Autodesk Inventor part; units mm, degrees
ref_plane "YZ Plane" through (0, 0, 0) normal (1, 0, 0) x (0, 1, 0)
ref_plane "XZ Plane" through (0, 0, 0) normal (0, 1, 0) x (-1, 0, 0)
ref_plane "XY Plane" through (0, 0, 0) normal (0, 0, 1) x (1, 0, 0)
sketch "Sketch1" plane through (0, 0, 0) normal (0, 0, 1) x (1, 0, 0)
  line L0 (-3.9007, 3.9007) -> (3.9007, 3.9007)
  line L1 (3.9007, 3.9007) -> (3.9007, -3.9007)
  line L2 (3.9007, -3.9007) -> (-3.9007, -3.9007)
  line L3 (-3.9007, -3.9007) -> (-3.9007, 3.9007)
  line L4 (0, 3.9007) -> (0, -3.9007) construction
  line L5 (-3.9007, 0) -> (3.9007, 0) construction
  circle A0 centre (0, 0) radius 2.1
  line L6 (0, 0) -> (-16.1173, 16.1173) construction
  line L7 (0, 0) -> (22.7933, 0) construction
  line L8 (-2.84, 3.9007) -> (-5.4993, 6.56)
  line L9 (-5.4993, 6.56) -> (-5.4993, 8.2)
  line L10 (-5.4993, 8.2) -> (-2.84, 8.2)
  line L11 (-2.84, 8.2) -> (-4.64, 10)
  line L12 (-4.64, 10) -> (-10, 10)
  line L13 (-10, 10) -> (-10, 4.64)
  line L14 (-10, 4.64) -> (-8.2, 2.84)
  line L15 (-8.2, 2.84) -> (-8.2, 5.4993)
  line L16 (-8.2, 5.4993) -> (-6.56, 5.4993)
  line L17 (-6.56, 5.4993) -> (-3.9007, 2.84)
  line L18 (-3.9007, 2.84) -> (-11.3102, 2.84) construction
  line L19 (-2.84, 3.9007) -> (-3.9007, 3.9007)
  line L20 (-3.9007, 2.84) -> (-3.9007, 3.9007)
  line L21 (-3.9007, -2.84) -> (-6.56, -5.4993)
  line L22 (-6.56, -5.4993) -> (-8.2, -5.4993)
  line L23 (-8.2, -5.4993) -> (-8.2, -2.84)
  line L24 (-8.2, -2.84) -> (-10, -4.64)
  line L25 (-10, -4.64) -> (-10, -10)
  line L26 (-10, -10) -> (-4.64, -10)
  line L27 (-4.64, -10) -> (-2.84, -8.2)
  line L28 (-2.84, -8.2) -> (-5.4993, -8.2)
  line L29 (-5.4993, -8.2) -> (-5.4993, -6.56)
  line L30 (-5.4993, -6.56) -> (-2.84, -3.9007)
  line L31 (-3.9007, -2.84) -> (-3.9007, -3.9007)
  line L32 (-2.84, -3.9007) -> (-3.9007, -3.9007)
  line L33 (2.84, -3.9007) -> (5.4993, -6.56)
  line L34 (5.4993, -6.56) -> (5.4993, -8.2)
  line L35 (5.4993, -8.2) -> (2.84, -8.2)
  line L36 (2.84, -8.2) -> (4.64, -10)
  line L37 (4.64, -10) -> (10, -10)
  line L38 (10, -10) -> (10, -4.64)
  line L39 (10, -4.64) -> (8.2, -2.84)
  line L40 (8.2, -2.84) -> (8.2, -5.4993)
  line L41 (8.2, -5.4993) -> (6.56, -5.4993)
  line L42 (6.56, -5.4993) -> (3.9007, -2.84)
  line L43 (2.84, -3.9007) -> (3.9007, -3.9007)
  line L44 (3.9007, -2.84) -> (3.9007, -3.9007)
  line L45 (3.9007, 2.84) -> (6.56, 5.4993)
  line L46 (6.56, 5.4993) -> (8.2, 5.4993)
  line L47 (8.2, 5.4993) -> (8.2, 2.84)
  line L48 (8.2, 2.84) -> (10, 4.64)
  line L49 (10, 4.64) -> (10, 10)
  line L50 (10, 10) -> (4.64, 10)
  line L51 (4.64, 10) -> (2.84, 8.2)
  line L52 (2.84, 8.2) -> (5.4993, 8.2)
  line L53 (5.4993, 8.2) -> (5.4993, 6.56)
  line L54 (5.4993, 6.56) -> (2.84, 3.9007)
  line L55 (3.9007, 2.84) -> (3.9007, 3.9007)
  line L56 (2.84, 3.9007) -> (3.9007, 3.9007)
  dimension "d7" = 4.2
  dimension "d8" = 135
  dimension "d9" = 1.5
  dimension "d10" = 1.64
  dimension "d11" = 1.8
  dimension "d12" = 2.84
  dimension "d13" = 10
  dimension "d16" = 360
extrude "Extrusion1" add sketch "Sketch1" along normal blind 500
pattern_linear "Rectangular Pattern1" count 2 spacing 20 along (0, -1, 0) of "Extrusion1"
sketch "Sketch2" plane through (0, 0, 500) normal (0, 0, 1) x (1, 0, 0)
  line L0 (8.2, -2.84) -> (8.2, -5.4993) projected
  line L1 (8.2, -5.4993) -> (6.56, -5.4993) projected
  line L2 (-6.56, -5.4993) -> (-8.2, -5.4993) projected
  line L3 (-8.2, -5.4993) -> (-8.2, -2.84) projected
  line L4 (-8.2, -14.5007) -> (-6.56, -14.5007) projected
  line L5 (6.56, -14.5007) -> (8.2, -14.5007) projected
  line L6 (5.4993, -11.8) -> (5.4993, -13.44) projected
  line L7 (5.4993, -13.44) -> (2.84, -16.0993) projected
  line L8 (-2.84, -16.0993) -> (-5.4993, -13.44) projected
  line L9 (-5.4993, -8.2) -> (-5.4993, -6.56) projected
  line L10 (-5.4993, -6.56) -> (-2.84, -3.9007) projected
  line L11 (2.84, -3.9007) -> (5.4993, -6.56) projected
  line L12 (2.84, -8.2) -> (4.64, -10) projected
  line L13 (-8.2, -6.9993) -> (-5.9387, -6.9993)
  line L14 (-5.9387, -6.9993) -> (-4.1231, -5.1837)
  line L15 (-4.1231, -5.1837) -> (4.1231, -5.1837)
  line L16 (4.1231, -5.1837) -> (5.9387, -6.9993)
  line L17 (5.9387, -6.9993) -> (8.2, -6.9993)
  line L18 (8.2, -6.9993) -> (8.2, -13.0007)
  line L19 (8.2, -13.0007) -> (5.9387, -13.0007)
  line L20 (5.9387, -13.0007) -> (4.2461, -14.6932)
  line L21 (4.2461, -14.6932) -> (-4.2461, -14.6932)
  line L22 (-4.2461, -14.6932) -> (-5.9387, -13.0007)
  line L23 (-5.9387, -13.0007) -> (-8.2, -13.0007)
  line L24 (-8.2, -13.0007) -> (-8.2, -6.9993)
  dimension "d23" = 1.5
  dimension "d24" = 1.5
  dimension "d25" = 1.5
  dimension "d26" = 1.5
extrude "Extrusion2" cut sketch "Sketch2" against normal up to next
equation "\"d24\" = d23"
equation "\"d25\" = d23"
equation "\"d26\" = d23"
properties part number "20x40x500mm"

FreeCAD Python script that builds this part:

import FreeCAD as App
import Part
import Sketcher

V = App.Vector
Q = App.Units.Quantity


def add_polygon(sketch, points):
    """Adds a closed chain of lines whose ends are joined by coincident constraints."""
    first, n = sketch.GeometryCount, len(points)
    for a, b in zip(points, points[1:] + points[:1]):
        sketch.addGeometry(Part.LineSegment(App.Vector(*a, 0), App.Vector(*b, 0)), False)
    for i in range(n):
        sketch.addConstraint(Sketcher.Constraint("Coincident", first + i, 2, first + (i + 1) % n, 1))

doc = App.newDocument("Part")
params = doc.addObject("Spreadsheet::Sheet", "Params")
for row, (alias, value) in enumerate([
    ("sketch1_diameter", "4.2 mm"),
    ("sketch1_width", "1.64 mm"),
    ("pad1_length", "500 mm"),
    ("linearpattern_pitch", "20 mm"),
    ("pocket1_length", "500 mm"),
], start=1):
    params.set(f"A{row}", alias)
    params.set(f"B{row}", "=" + value)
    params.setAlias(f"B{row}", alias)

body = doc.addObject("PartDesign::Body", "Body")

# Sketch on XY plane
sketch1 = doc.addObject("Sketcher::SketchObject", "Sketch")
body.addObject(sketch1)
sketch1.AttachmentSupport = (doc.XY_Plane, [""])
sketch1.MapMode = "FlatFace"
add_polygon(sketch1, [(-6.6, 5.5), (-3.9, 2.8), (-3.9, -2.8), (-6.6, -5.5), (-8.2, -5.5), (-8.2, -2.8), (-10, -4.6), (-10, -10), (-4.6, -10), (-2.8, -8.2), (-5.5, -8.2), (-5.5, -6.6), (-2.8, -3.9), (2.8, -3.9), (5.5, -6.6), (5.5, -8.2), (2.8, -8.2), (4.6, -10), (10, -10), (10, -4.6), (8.2, -2.8), (8.2, -5.5), (6.6, -5.5), (3.9, -2.8), (3.9, 2.8), (6.6, 5.5), (8.2, 5.5), (8.2, 2.8), (10, 4.6), (10, 10), (4.6, 10), (2.8, 8.2), (5.5, 8.2), (5.5, 6.6), (2.8, 3.9), (-2.8, 3.9), (-5.5, 6.6), (-5.5, 8.2), (-2.8, 8.2), (-4.6, 10), (-10, 10), (-10, 4.6), (-8.2, 2.8), (-8.2, 5.5)])  # lines 0-43
sketch1.addGeometry(Part.Circle(V(0, 0, 0), V(0, 0, 1), 2.1), False)  # 44
sketch1.addConstraint([
    Sketcher.Constraint("Vertical", 1),
    Sketcher.Constraint("Horizontal", 3),
    Sketcher.Constraint("Vertical", 4),
    Sketcher.Constraint("Vertical", 6),
    Sketcher.Constraint("Horizontal", 7),
    Sketcher.Constraint("Horizontal", 9),
    Sketcher.Constraint("Vertical", 10),
    Sketcher.Constraint("Horizontal", 12),
    Sketcher.Constraint("Vertical", 14),
    Sketcher.Constraint("Horizontal", 15),
    Sketcher.Constraint("Horizontal", 17),
    Sketcher.Constraint("Vertical", 18),
    Sketcher.Constraint("Vertical", 20),
    Sketcher.Constraint("Horizontal", 21),
    Sketcher.Constraint("Vertical", 23),
    Sketcher.Constraint("Horizontal", 25),
    Sketcher.Constraint("Vertical", 26),
    Sketcher.Constraint("Vertical", 28),
    Sketcher.Constraint("Horizontal", 29),
    Sketcher.Constraint("Horizontal", 31),
    Sketcher.Constraint("Vertical", 32),
    Sketcher.Constraint("Horizontal", 34),
    Sketcher.Constraint("Vertical", 36),
    Sketcher.Constraint("Horizontal", 37),
    Sketcher.Constraint("Horizontal", 39),
    Sketcher.Constraint("Vertical", 40),
    Sketcher.Constraint("Vertical", 42),
    Sketcher.Constraint("Horizontal", 43),
    Sketcher.Constraint("Coincident", 44, 3, -1, 1),
    Sketcher.Constraint("Symmetric", 0, 2, 22, 2, -1, 1),
    Sketcher.Constraint("Symmetric", 2, 2, 24, 2, -1, 1),
    Sketcher.Constraint("Symmetric", 4, 2, 26, 2, -1, 1),
    Sketcher.Constraint("Symmetric", 5, 2, 27, 2, -1, 1),
    Sketcher.Constraint("Symmetric", 7, 2, 29, 2, -1, 1),
    Sketcher.Constraint("Symmetric", 8, 2, 30, 2, -1, 1),
    Sketcher.Constraint("Symmetric", 10, 2, 32, 2, -1, 1),
    Sketcher.Constraint("Symmetric", 11, 2, 33, 2, -1, 1),
    Sketcher.Constraint("Symmetric", 13, 2, 35, 2, -1, 1),
    Sketcher.Constraint("Symmetric", 15, 2, 37, 2, -1, 1),
    Sketcher.Constraint("Symmetric", 16, 2, 38, 2, -1, 1),
    Sketcher.Constraint("Symmetric", 18, 2, 40, 2, -1, 1),
    Sketcher.Constraint("Symmetric", 19, 2, 41, 2, -1, 1),
    Sketcher.Constraint("Symmetric", 21, 2, 43, 2, -1, 1),
    Sketcher.Constraint("Symmetric", 10, 2, 13, 2, -2),
    Sketcher.Constraint("Symmetric", 8, 2, 15, 2, -2),
    Sketcher.Constraint("Symmetric", 7, 2, 16, 2, -2),
    Sketcher.Constraint("Symmetric", 5, 2, 18, 2, -2),
    Sketcher.Constraint("Symmetric", 4, 2, 19, 2, -2),
    Sketcher.Constraint("Symmetric", 2, 2, 21, 2, -2),
    Sketcher.Constraint("Perpendicular", 0, 2),
    Sketcher.Constraint("Parallel", 2, 5),
    Sketcher.Constraint("Parallel", 5, 8),
    Sketcher.Constraint("Parallel", 8, 11),
    Sketcher.Constraint("Perpendicular", 11, 13),
    Sketcher.Constraint("Parallel", 13, 16),
    Sketcher.Constraint("Perpendicular", 22, 24),
    Sketcher.Constraint("Perpendicular", 33, 35),
    Sketcher.Constraint("Horizontal", 1, 2, 4, 2),
    Sketcher.Constraint("Vertical", 8, 2, 11, 2),
    Sketcher.Constraint("Equal", 34, 1),
    Sketcher.Constraint("Equal", 37, 4),
    Sketcher.Constraint("Equal", 39, 6),
    Sketcher.Constraint("Equal", 43, 10),
    Sketcher.Constraint("Equal", 5, 8),
    Sketcher.Constraint("Diameter", 44, Q("4.2 mm")),
    Sketcher.Constraint("DistanceX", 5, 2, -1, 1, Q("10 mm")),
    Sketcher.Constraint("DistanceX", 3, 2, 3, 1, Q("1.64 mm")),
    Sketcher.Constraint("DistanceX", 5, 2, 3, 2, Q("1.8 mm")),
    Sketcher.Constraint("DistanceY", -1, 1, 0, 2, Q("2.84 mm")),
    Sketcher.Constraint("DistanceX", 9, 2, 9, 1, Q("2.6593 mm")),
])
sketch1.setExpression("Constraints[108]", "Params.sketch1_diameter")
sketch1.setExpression("Constraints[110]", "Params.sketch1_width")
pad1 = doc.addObject("PartDesign::Pad", "Pad")
body.addObject(pad1)
pad1.Profile = sketch1
pad1.setExpression("Length", "Params.pad1_length")
doc.recompute()

linearpattern = doc.addObject("PartDesign::LinearPattern", "LinearPattern")
body.addObject(linearpattern)
linearpattern.Originals = [pad1]
linearpattern.Direction = (doc.Y_Axis, [""])
linearpattern.Mode = "offset"
linearpattern.setExpression("Offset", "Params.linearpattern_pitch")
linearpattern.Occurrences = 2
linearpattern.Reversed = True
body.Tip = linearpattern

# Sketch on XY plane
sketch2 = doc.addObject("Sketcher::SketchObject", "Sketch001")
body.addObject(sketch2)
sketch2.AttachmentSupport = (doc.XY_Plane, [""])
sketch2.MapMode = "FlatFace"
sketch2.AttachmentOffset = App.Placement(V(0, 0, 500), App.Rotation())
add_polygon(sketch2, [(4.2, -14.7), (5.5, -13.4), (5.9, -13), (8.2, -13), (8.2, -7), (5.9, -7), (5.5, -6.6), (4.1, -5.2), (-4.1, -5.2), (-5.5, -6.6), (-5.9, -7), (-8.2, -7), (-8.2, -13), (-5.9, -13), (-5.5, -13.4), (-4.2, -14.7)])  # lines 0-15
sketch2.addConstraint([
    Sketcher.Constraint("Horizontal", 2),
    Sketcher.Constraint("Vertical", 3),
    Sketcher.Constraint("Horizontal", 4),
    Sketcher.Constraint("Horizontal", 7),
    Sketcher.Constraint("Horizontal", 10),
    Sketcher.Constraint("Vertical", 11),
    Sketcher.Constraint("Horizontal", 12),
    Sketcher.Constraint("Horizontal", 15),
    Sketcher.Constraint("Symmetric", 5, 2, 8, 2, -2),
    Sketcher.Constraint("Symmetric", 4, 2, 9, 2, -2),
    Sketcher.Constraint("Symmetric", 2, 2, 11, 2, -2),
    Sketcher.Constraint("Symmetric", 0, 2, 13, 2, -2),
    Sketcher.Constraint("Parallel", 0, 1),
    Sketcher.Constraint("Perpendicular", 1, 5),
    Sketcher.Constraint("Parallel", 5, 6),
    Sketcher.Constraint("Perpendicular", 6, 8),
    Sketcher.Constraint("Parallel", 8, 9),
    Sketcher.Constraint("Perpendicular", 9, 13),
    Sketcher.Constraint("Parallel", 13, 14),
    Sketcher.Constraint("Vertical", 1, 2, 4, 2),
    Sketcher.Constraint("Vertical", 0, 2, 5, 2),
    Sketcher.Constraint("DistanceX", -1, 1, 2, 2, Q("8.2 mm")),
    Sketcher.Constraint("DistanceY", 0, 2, -1, 1, Q("13.44 mm")),
    Sketcher.Constraint("DistanceY", 5, 2, -1, 1, Q("6.56 mm")),
    Sketcher.Constraint("DistanceX", 2, 1, 2, 2, Q("2.2613 mm")),
    Sketcher.Constraint("DistanceX", 7, 2, 7, 1, Q("8.2462 mm")),
    Sketcher.Constraint("DistanceX", 15, 1, 15, 2, Q("8.4922 mm")),
    Sketcher.Constraint("DistanceY", 3, 1, 3, 2, Q("6.0014 mm")),
])
pocket1 = doc.addObject("PartDesign::Pocket", "Pocket")
body.addObject(pocket1)
pocket1.Profile = sketch2
pocket1.setExpression("Length", "Params.pocket1_length")

doc.recompute()
